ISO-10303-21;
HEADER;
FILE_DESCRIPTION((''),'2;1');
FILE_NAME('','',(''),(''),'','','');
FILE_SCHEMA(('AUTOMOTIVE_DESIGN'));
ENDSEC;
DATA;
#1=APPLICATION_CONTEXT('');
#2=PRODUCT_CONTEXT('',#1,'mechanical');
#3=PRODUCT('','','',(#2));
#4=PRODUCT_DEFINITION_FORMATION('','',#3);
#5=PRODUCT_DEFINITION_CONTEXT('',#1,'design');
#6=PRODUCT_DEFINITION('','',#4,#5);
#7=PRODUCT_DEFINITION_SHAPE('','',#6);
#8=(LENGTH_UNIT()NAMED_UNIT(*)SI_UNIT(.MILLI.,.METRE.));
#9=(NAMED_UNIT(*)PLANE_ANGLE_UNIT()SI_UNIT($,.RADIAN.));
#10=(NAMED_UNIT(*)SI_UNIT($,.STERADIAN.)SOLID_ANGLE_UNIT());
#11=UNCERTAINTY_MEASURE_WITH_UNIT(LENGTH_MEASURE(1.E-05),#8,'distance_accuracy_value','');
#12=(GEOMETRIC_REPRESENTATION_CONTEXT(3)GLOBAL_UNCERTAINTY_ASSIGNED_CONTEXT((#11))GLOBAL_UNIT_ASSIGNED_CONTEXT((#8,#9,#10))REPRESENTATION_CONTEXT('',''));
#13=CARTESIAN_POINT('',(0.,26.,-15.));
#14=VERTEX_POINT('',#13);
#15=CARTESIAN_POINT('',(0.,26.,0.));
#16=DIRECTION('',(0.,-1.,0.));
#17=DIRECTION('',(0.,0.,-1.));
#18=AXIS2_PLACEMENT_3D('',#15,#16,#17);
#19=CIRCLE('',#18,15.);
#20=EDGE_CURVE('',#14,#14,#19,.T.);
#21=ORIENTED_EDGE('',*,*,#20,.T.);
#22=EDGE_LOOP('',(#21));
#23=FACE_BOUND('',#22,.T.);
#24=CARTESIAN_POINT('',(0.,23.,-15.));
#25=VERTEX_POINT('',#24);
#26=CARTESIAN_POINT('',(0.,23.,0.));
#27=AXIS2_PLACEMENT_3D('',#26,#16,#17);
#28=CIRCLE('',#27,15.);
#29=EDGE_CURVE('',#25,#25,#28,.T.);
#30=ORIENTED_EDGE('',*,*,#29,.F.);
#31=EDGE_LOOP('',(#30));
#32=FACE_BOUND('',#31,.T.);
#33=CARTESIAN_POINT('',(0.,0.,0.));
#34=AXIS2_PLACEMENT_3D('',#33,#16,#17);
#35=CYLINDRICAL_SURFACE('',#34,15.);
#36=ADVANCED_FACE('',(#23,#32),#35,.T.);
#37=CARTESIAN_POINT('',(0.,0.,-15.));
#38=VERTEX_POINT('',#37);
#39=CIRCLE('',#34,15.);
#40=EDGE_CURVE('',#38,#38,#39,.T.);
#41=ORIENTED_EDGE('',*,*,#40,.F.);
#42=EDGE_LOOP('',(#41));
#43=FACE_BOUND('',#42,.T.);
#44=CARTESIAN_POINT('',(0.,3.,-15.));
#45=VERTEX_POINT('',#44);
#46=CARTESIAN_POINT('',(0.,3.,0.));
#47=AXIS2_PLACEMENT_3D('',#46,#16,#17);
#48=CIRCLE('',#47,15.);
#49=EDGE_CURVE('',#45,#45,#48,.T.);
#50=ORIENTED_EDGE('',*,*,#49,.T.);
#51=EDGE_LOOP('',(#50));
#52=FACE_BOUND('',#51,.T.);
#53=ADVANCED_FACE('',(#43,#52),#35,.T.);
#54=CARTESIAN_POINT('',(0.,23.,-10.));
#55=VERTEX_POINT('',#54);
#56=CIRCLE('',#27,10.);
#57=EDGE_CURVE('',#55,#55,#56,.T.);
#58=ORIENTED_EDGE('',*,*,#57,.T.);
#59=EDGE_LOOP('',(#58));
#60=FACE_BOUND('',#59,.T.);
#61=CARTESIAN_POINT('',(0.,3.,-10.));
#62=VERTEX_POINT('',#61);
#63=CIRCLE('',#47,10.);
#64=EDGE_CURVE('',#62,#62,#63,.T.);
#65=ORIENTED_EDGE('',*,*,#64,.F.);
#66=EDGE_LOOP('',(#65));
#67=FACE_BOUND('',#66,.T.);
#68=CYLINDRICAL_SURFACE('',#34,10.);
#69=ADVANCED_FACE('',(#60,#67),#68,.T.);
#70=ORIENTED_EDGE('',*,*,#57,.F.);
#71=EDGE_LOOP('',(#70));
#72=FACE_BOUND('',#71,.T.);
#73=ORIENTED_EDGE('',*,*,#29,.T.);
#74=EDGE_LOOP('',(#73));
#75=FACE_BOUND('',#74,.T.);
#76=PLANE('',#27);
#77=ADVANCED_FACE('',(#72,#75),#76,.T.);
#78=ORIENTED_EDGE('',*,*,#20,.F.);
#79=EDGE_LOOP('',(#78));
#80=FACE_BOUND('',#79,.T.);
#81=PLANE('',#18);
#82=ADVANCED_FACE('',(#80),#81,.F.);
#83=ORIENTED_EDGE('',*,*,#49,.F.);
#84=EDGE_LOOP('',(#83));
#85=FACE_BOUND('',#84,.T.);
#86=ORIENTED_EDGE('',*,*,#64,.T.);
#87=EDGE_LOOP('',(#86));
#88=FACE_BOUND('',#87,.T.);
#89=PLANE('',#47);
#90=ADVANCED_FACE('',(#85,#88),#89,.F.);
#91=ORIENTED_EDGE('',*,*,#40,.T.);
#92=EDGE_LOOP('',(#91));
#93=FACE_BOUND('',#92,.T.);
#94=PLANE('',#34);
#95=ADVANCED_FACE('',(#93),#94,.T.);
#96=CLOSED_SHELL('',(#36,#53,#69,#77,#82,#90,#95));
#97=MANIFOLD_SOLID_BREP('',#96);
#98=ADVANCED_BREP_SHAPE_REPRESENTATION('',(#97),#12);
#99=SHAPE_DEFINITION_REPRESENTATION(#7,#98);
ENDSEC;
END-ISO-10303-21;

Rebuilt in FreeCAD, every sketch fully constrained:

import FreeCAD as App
import Part
import Sketcher

V = App.Vector
Q = App.Units.Quantity

doc = App.newDocument("Part")
body = doc.addObject("PartDesign::Body", "Body")

# Sketch on XY plane
sketch1 = body.newObject("Sketcher::SketchObject", "Sketch")
sketch1.AttachmentSupport = (doc.getObject("XY_Plane"), [""])
sketch1.MapMode = "FlatFace"
sketch1.addGeometry([
    Part.LineSegment(V(-15, 3, 0), V(-15, 0, 0)),  # 0
    Part.LineSegment(V(-15, 0, 0), V(0, 0, 0)),  # 1
    Part.LineSegment(V(0, 0, 0), V(0, 26, 0)),  # 2
    Part.LineSegment(V(0, 26, 0), V(-15, 26, 0)),  # 3
    Part.LineSegment(V(-15, 26, 0), V(-15, 23, 0)),  # 4
    Part.LineSegment(V(-15, 23, 0), V(-10, 23, 0)),  # 5
    Part.LineSegment(V(-10, 23, 0), V(-10, 3, 0)),  # 6
    Part.LineSegment(V(-10, 3, 0), V(-15, 3, 0)),  # 7
], False)
sketch1.addConstraint([
    Sketcher.Constraint("Coincident", 0, 2, 1, 1),
    Sketcher.Constraint("Coincident", 1, 2, 2, 1),
    Sketcher.Constraint("Coincident", 2, 2, 3, 1),
    Sketcher.Constraint("Coincident", 3, 2, 4, 1),
    Sketcher.Constraint("Coincident", 4, 2, 5, 1),
    Sketcher.Constraint("Coincident", 5, 2, 6, 1),
    Sketcher.Constraint("Coincident", 6, 2, 7, 1),
    Sketcher.Constraint("Coincident", 7, 2, 0, 1),
    Sketcher.Constraint("Vertical", 0),
    Sketcher.Constraint("Horizontal", 1),
    Sketcher.Constraint("Vertical", 2),
    Sketcher.Constraint("Horizontal", 3),
    Sketcher.Constraint("Vertical", 4),
    Sketcher.Constraint("Horizontal", 5),
    Sketcher.Constraint("Vertical", 6),
    Sketcher.Constraint("Horizontal", 7),
    Sketcher.Constraint("Coincident", 1, 2, -1, 1),
    Sketcher.Constraint("Vertical", 0, 2, 3, 2),
    Sketcher.Constraint("Equal", 0, 4),
    Sketcher.Constraint("DistanceX", 1, 1, 1, 2, Q("15 mm")),
    Sketcher.Constraint("DistanceX", 5, 1, 5, 2, Q("5 mm")),
    Sketcher.Constraint("DistanceY", 0, 2, 0, 1, Q("3 mm")),
    Sketcher.Constraint("DistanceY", 2, 1, 2, 2, Q("26 mm")),
])
revolution = body.newObject("PartDesign::Revolution", "Revolution")
revolution.Profile = sketch1
revolution.ReferenceAxis = (sketch1, ["V_Axis"])
revolution.Angle = 360

doc.recompute()
